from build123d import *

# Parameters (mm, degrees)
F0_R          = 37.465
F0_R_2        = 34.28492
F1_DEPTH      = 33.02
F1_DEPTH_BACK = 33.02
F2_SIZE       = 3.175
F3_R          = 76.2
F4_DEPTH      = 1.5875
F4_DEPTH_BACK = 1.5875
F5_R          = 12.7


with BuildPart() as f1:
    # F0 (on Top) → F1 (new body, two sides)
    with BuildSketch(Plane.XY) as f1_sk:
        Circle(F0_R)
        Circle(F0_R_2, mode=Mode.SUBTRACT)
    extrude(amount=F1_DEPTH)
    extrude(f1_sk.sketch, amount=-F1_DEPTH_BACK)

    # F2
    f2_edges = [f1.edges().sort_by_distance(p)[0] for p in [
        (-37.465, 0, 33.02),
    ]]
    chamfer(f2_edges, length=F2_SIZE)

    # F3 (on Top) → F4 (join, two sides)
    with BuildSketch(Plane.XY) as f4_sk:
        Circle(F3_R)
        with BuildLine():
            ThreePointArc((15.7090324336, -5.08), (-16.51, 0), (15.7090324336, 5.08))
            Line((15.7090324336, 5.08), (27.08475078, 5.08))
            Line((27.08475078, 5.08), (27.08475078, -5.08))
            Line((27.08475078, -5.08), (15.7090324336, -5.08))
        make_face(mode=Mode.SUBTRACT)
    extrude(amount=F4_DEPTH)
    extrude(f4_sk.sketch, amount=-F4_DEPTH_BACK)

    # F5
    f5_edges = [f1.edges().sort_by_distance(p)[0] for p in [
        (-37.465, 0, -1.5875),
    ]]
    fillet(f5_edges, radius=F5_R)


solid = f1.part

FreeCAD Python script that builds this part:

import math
import FreeCAD as App
import Part
import Sketcher
from FreeCAD import Vector
Q = App.Units.Quantity


def edges_at(feature, points):
    """Names of the edges that pass closest to the given points."""
    edges = feature.Shape.Edges
    near = lambda p: min(range(len(edges)), key=lambda i: edges[i].distToShape(Part.Vertex(*p))[0])
    return sorted({f"Edge{near(p) + 1}" for p in points})

doc = App.newDocument("Part")
params = doc.addObject("Spreadsheet::Sheet", "Params")
for row, (alias, value) in enumerate([
    ("sketch1_diameter", "2.95 in"),
    ("pad1_length", "1.3 in"),
    ("pad1_length2", "1.3 in"),
    ("chamfer_size", "0.125 in"),
    ("sketch2_diameter", "6 in"),
    ("sketch2_radius", "0.65 in"),
    ("sketch2_height", "0.4 in"),
    ("pad2_length", "0.0625 in"),
    ("pad2_length2", "0.0625 in"),
    ("fillet_radius", "0.5 in"),
], start=1):
    params.set(f"A{row}", alias)
    params.set(f"B{row}", "=" + value)
    params.setAlias(f"B{row}", alias)

body = doc.addObject("PartDesign::Body", "Body")

sketch1 = doc.addObject("Sketcher::SketchObject", "Sketch")
body.addObject(sketch1)
sketch1.AttachmentSupport = (doc.XY_Plane, [""])
sketch1.MapMode = "FlatFace"
sketch1.addGeometry([
    Part.Circle(Vector(0, 0, 0), Vector(0, 0, 1), 37),
    Part.Circle(Vector(0, 0, 0), Vector(0, 0, 1), 34),
], False)
sketch1.addConstraint([
    Sketcher.Constraint("Coincident", 0, 3, -1, 1),
    Sketcher.Constraint("Coincident", 1, 3, -1, 1),
    Sketcher.Constraint("Diameter", 0, Q("2.95 in")),
    Sketcher.Constraint("Diameter", 1, Q("2.6996 in")),
])
sketch1.setExpression("Constraints[2]", "Params.sketch1_diameter")
pad1 = doc.addObject("PartDesign::Pad", "Pad")
body.addObject(pad1)
pad1.Profile = sketch1
pad1.Type = "TwoLengths"
pad1.setExpression("Length", "Params.pad1_length")
pad1.setExpression("Length2", "Params.pad1_length2")
doc.recompute()

chamfer = doc.addObject("PartDesign::Chamfer", "Chamfer")
body.addObject(chamfer)
chamfer.Base = (pad1, edges_at(pad1, [(-37.465, 0, 33.02)]))
chamfer.setExpression("Size", "Params.chamfer_size")

sketch2 = doc.addObject("Sketcher::SketchObject", "Sketch001")
body.addObject(sketch2)
sketch2.AttachmentSupport = (doc.XY_Plane, [""])
sketch2.MapMode = "FlatFace"
sketch2.addGeometry([
    Part.Circle(Vector(0, 0, 0), Vector(0, 0, 1), 76),
    Part.LineSegment(Vector(27, -5, 0), Vector(16, -5, 0)),
    Part.ArcOfCircle(Part.Circle(Vector(0, 0, 0), Vector(0, 0, 1), 17), math.radians(18), math.radians(342)),
    Part.LineSegment(Vector(16, 5, 0), Vector(27, 5, 0)),
    Part.LineSegment(Vector(27, 5, 0), Vector(27, -5, 0)),
], False)
sketch2.addConstraint([
    Sketcher.Constraint("Coincident", 1, 2, 2, 2),
    Sketcher.Constraint("Coincident", 2, 1, 3, 1),
    Sketcher.Constraint("Coincident", 3, 2, 4, 1),
    Sketcher.Constraint("Coincident", 4, 2, 1, 1),
    Sketcher.Constraint("Horizontal", 1),
    Sketcher.Constraint("Horizontal", 3),
    Sketcher.Constraint("Vertical", 4),
    Sketcher.Constraint("Coincident", 0, 3, -1, 1),
    Sketcher.Constraint("Coincident", 2, 3, -1, 1),
    Sketcher.Constraint("Vertical", 1, 2, 2, 1),
    Sketcher.Constraint("Diameter", 0, Q("6 in")),
    Sketcher.Constraint("Radius", 2, Q("0.65 in")),
    Sketcher.Constraint("DistanceY", 4, 2, 4, 1, Q("0.4 in")),
    Sketcher.Constraint("DistanceX", 1, 2, 1, 1, 11.375718),
])
sketch2.setExpression("Constraints[10]", "Params.sketch2_diameter")
sketch2.setExpression("Constraints[11]", "Params.sketch2_radius")
sketch2.setExpression("Constraints[12]", "Params.sketch2_height")
pad2 = doc.addObject("PartDesign::Pad", "Pad001")
body.addObject(pad2)
pad2.Profile = sketch2
pad2.Type = "TwoLengths"
pad2.setExpression("Length", "Params.pad2_length")
pad2.setExpression("Length2", "Params.pad2_length2")
doc.recompute()

fillet = doc.addObject("PartDesign::Fillet", "Fillet")
body.addObject(fillet)
fillet.Base = (pad2, edges_at(pad2, [(-37.465, 0, -1.587)]))
fillet.setExpression("Radius", "Params.fillet_radius")

doc.recompute()
